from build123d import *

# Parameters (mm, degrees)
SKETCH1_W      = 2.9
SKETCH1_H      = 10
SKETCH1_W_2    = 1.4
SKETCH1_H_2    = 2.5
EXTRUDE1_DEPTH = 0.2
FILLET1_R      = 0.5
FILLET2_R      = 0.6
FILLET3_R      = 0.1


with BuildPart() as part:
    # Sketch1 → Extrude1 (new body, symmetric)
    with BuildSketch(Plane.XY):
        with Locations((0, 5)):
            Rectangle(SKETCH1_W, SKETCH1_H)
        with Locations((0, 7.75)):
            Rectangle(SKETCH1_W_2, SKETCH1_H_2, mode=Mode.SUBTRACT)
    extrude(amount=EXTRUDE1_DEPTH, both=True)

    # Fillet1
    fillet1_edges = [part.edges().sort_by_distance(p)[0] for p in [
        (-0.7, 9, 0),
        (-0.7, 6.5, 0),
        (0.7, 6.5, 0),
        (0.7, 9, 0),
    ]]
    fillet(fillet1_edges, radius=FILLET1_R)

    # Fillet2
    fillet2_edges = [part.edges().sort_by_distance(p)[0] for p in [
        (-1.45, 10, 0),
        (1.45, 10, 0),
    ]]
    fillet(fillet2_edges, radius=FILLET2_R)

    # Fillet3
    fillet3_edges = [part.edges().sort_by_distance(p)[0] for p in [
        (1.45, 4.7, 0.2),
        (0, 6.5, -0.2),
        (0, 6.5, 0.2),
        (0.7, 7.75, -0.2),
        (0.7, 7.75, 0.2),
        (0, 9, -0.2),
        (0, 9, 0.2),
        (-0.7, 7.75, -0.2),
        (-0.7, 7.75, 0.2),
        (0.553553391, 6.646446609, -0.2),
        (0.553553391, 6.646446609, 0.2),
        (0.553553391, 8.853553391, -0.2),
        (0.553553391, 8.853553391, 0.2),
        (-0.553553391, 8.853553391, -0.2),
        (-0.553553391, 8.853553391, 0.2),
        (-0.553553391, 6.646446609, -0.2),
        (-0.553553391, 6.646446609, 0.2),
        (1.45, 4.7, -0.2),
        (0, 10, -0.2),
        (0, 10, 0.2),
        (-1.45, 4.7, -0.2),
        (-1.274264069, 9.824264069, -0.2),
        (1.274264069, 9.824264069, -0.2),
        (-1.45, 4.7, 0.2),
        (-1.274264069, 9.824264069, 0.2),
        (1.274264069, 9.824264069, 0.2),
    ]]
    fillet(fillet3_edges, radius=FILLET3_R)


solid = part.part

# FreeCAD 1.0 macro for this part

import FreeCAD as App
import Part
import Sketcher
Q = App.Units.Quantity


def edges_at(feature, points):
    """Names of the edges that pass closest to the given points."""
    edges = feature.Shape.Edges
    near = lambda p: min(range(len(edges)), key=lambda i: edges[i].distToShape(Part.Vertex(*p))[0])
    return sorted({f"Edge{near(p) + 1}" for p in points})


def add_polygon(sketch, points):
    """Adds a closed chain of lines whose ends are joined by coincident constraints."""
    first, n = sketch.GeometryCount, len(points)
    for a, b in zip(points, points[1:] + points[:1]):
        sketch.addGeometry(Part.LineSegment(App.Vector(*a, 0), App.Vector(*b, 0)), False)
    for i in range(n):
        sketch.addConstraint(Sketcher.Constraint("Coincident", first + i, 2, first + (i + 1) % n, 1))

doc = App.newDocument("Part")
body = doc.addObject("PartDesign::Body", "Body")

# Sketch on XY plane
sketch1 = body.newObject("Sketcher::SketchObject", "Sketch")
sketch1.AttachmentSupport = (doc.getObject("XY_Plane"), [""])
sketch1.MapMode = "FlatFace"
add_polygon(sketch1, [(-1.4, 10), (-1.4, 0), (1.4, 0), (1.4, 10)])  # lines 0-3
add_polygon(sketch1, [(0.7, 6.5), (-0.7, 6.5), (-0.7, 9), (0.7, 9)])  # lines 4-7
sketch1.addConstraint([
    Sketcher.Constraint("Vertical", 0),
    Sketcher.Constraint("Horizontal", 1),
    Sketcher.Constraint("Vertical", 2),
    Sketcher.Constraint("Horizontal", 3),
    Sketcher.Constraint("Horizontal", 4),
    Sketcher.Constraint("Vertical", 5),
    Sketcher.Constraint("Horizontal", 6),
    Sketcher.Constraint("Vertical", 7),
    Sketcher.Constraint("Symmetric", 0, 2, 1, 2, -1, 1),
    Sketcher.Constraint("DistanceY", 0, 2, 0, 1, Q("10 mm")),
    Sketcher.Constraint("DistanceX", 1, 1, 1, 2, Q("2.9 mm")),
    Sketcher.Constraint("DistanceX", 4, 2, 4, 1, Q("1.4 mm")),
    Sketcher.Constraint("DistanceY", 5, 1, 5, 2, Q("2.5 mm")),
    Sketcher.Constraint("DistanceY", -1, 1, 5, 2, Q("9 mm")),
    Sketcher.Constraint("DistanceX", 4, 2, -1, 1, Q("0.7 mm")),
])
pad1 = body.newObject("PartDesign::Pad", "Pad")
pad1.Profile = sketch1
pad1.Length = 0.4
pad1.Midplane = True
doc.recompute()

fillet = body.newObject("PartDesign::Fillet", "Fillet")
fillet.Base = (pad1, edges_at(pad1, [
    (-0.7, 9, 0),
    (-0.7, 6.5, 0),
    (0.7, 6.5, 0),
    (0.7, 9, 0),
]))
fillet.Radius = 0.5
doc.recompute()

fillet2 = body.newObject("PartDesign::Fillet", "Fillet001")
fillet2.Base = (fillet, edges_at(fillet, [(-1.45, 10, 0), (1.45, 10, 0)]))
fillet2.Radius = 0.6
doc.recompute()

fillet3 = body.newObject("PartDesign::Fillet", "Fillet002")
fillet3.Base = (fillet2, edges_at(fillet2, [
    (1.45, 4.7, 0.2),
    (0, 6.5, -0.2),
    (0, 6.5, 0.2),
    (0.7, 7.75, -0.2),
    (0.7, 7.75, 0.2),
    (0, 9, -0.2),
    (0, 9, 0.2),
    (-0.7, 7.75, -0.2),
    (-0.7, 7.75, 0.2),
    (0.554, 6.646, -0.2),
    (0.554, 6.646, 0.2),
    (0.554, 8.854, -0.2),
    (0.554, 8.854, 0.2),
    (-0.554, 8.854, -0.2),
    (-0.554, 8.854, 0.2),
    (-0.554, 6.646, -0.2),
    (-0.554, 6.646, 0.2),
    (1.45, 4.7, -0.2),
    (0, 10, -0.2),
    (0, 10, 0.2),
    (-1.45, 4.7, -0.2),
    (-1.274, 9.824, -0.2),
    (1.274, 9.824, -0.2),
    (-1.45, 4.7, 0.2),
    (-1.274, 9.824, 0.2),
    (1.274, 9.824, 0.2),
]))
fillet3.Radius = 0.1

doc.recompute()
